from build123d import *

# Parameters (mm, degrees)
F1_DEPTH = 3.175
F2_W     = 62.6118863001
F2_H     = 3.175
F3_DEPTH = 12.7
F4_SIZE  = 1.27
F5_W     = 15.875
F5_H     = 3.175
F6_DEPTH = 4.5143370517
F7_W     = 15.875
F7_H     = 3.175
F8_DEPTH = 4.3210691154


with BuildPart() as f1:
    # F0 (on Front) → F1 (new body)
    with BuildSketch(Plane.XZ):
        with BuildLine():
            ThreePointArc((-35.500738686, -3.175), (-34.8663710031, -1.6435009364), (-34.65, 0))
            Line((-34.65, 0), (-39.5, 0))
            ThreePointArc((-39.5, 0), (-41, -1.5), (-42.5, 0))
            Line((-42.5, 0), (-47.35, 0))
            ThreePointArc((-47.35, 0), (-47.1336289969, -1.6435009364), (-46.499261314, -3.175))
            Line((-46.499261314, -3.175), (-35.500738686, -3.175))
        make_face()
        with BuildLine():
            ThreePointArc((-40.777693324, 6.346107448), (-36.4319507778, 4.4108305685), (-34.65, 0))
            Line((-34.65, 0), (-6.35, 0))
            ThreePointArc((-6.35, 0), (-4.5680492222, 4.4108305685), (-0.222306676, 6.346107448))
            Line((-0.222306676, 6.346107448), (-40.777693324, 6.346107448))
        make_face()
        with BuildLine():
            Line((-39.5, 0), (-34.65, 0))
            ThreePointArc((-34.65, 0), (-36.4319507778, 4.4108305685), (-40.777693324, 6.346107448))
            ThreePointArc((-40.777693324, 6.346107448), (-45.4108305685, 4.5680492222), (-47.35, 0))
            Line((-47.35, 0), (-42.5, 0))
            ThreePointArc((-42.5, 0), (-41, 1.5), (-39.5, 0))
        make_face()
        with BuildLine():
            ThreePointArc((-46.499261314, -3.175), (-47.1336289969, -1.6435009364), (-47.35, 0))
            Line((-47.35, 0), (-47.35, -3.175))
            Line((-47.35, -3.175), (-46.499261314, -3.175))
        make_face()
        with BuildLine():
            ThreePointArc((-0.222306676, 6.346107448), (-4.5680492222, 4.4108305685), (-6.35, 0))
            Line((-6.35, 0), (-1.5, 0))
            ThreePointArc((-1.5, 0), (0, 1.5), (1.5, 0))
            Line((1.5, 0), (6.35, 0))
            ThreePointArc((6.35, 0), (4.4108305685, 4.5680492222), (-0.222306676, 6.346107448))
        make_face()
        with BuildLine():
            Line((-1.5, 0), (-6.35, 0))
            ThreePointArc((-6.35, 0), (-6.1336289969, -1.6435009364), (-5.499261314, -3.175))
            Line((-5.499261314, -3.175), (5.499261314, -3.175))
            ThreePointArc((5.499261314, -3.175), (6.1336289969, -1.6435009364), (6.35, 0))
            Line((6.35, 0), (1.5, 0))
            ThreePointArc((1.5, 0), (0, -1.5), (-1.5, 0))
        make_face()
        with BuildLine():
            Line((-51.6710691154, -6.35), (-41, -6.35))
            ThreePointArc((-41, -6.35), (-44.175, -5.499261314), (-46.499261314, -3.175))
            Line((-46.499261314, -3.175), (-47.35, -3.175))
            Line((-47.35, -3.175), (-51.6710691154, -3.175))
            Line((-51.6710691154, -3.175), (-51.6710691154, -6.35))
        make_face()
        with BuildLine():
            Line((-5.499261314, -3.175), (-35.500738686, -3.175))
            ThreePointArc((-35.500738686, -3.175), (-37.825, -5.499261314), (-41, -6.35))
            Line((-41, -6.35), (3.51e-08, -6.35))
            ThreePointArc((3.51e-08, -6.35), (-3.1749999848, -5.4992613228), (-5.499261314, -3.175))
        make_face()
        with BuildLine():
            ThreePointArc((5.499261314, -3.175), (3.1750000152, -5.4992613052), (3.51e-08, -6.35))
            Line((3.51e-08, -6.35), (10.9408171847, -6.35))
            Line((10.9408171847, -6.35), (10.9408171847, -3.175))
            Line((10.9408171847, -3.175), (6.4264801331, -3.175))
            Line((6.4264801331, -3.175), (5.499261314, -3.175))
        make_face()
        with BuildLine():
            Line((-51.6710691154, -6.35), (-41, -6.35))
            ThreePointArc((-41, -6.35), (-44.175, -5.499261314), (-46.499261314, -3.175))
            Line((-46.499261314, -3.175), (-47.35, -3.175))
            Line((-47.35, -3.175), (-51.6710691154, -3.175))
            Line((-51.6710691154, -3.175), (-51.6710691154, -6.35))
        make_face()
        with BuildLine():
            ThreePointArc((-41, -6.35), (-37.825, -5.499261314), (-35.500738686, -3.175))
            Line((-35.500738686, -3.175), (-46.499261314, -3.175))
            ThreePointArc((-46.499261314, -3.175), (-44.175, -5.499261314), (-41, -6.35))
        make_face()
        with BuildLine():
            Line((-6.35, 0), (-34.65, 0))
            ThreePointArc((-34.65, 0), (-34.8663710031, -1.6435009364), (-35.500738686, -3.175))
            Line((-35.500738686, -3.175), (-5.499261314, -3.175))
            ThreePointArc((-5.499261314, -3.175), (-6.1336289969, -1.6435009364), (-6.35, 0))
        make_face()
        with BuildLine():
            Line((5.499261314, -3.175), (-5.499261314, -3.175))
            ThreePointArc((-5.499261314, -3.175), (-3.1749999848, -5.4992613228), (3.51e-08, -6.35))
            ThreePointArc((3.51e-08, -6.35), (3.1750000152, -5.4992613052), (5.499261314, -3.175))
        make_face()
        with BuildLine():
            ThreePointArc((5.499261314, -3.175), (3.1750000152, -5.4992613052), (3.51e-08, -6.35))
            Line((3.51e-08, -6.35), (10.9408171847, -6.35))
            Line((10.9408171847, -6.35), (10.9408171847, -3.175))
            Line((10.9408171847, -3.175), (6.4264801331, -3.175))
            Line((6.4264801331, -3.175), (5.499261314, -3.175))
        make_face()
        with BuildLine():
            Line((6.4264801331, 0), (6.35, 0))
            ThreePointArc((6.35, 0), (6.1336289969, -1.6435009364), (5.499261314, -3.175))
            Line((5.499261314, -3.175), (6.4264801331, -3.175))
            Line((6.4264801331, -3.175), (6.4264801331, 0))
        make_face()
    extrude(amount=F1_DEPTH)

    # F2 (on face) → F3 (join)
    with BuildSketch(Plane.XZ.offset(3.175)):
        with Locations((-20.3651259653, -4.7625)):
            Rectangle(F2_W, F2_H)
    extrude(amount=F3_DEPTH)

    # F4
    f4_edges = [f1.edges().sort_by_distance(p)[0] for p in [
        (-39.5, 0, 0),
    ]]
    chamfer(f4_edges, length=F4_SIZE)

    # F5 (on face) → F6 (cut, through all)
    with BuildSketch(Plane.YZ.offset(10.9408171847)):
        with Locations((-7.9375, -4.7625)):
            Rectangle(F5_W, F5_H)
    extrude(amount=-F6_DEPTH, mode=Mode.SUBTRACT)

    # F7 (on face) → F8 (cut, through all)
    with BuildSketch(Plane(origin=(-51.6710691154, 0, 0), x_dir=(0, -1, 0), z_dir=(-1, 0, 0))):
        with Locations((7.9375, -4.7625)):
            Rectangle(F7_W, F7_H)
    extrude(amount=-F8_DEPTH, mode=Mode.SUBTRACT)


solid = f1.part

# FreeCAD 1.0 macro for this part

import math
import FreeCAD as App
import Part
import Sketcher
from FreeCAD import Vector
Q = App.Units.Quantity


def edges_at(feature, points):
    """Names of the edges that pass closest to the given points."""
    edges = feature.Shape.Edges
    near = lambda p: min(range(len(edges)), key=lambda i: edges[i].distToShape(Part.Vertex(*p))[0])
    return sorted({f"Edge{near(p) + 1}" for p in points})


def add_polygon(sketch, points):
    """Adds a closed chain of lines whose ends are joined by coincident constraints."""
    first, n = sketch.GeometryCount, len(points)
    for a, b in zip(points, points[1:] + points[:1]):
        sketch.addGeometry(Part.LineSegment(App.Vector(*a, 0), App.Vector(*b, 0)), False)
    for i in range(n):
        sketch.addConstraint(Sketcher.Constraint("Coincident", first + i, 2, first + (i + 1) % n, 1))

doc = App.newDocument("Part")
body = doc.addObject("PartDesign::Body", "Body")

sketch1 = body.newObject("Sketcher::SketchObject", "Sketch")
sketch1.AttachmentSupport = (doc.getObject("XZ_Plane"), [""])
sketch1.MapMode = "FlatFace"
sketch1.addGeometry([
    Part.LineSegment(Vector(-51.671069, -6.35, 0), Vector(10.940817, -6.35, 0)),
    Part.LineSegment(Vector(10.940817, -6.35, 0), Vector(10.940817, -3.175, 0)),
    Part.LineSegment(Vector(10.940817, -3.175, 0), Vector(6.42648, -3.175, 0)),
    Part.LineSegment(Vector(6.42648, -3.175, 0), Vector(6.42648, 0, 0)),
    Part.LineSegment(Vector(6.42648, 0, 0), Vector(6.35, 0, 0)),
    Part.ArcOfCircle(Part.Circle(Vector(0, 0, 0), Vector(0, 0, 1), 6.35), math.radians(0), math.radians(92.006274)),
    Part.LineSegment(Vector(-0.222307, 6.346107, 0), Vector(-40.777693, 6.346107, 0)),
    Part.ArcOfCircle(Part.Circle(Vector(-41, 0, 0), Vector(0, 0, 1), 6.35), math.radians(87.993726), math.radians(180)),
    Part.LineSegment(Vector(-47.35, 0, 0), Vector(-47.35, -3.175, 0)),
    Part.LineSegment(Vector(-47.35, -3.175, 0), Vector(-51.671069, -3.175, 0)),
    Part.LineSegment(Vector(-51.671069, -3.175, 0), Vector(-51.671069, -6.35, 0)),
    Part.Circle(Vector(-41, 0, 0), Vector(0, 0, 1), 1.5),
    Part.Circle(Vector(0, 0, 0), Vector(0, 0, 1), 1.5),
], False)
sketch1.addConstraint([
    Sketcher.Constraint("Coincident", 0, 2, 1, 1),
    Sketcher.Constraint("Coincident", 1, 2, 2, 1),
    Sketcher.Constraint("Coincident", 2, 2, 3, 1),
    Sketcher.Constraint("Coincident", 3, 2, 4, 1),
    Sketcher.Constraint("Coincident", 4, 2, 5, 1),
    Sketcher.Constraint("Coincident", 5, 2, 6, 1),
    Sketcher.Constraint("Coincident", 6, 2, 7, 1),
    Sketcher.Constraint("Tangent", 7, 2, 8, 1),
    Sketcher.Constraint("Coincident", 8, 2, 9, 1),
    Sketcher.Constraint("Coincident", 9, 2, 10, 1),
    Sketcher.Constraint("Coincident", 10, 2, 0, 1),
    Sketcher.Constraint("Horizontal", 0),
    Sketcher.Constraint("Vertical", 1),
    Sketcher.Constraint("Horizontal", 2),
    Sketcher.Constraint("Vertical", 3),
    Sketcher.Constraint("Horizontal", 4),
    Sketcher.Constraint("Horizontal", 6),
    Sketcher.Constraint("Vertical", 8),
    Sketcher.Constraint("Horizontal", 9),
    Sketcher.Constraint("Vertical", 10),
    Sketcher.Constraint("Coincident", 5, 3, -1, 1),
    Sketcher.Constraint("Coincident", 12, 3, -1, 1),
    Sketcher.Constraint("Coincident", 11, 3, 7, 3),
    Sketcher.Constraint("Equal", 5, 7),
    Sketcher.Constraint("Equal", 11, 12),
    Sketcher.Constraint("PointOnObject", 7, 3, -1),
    Sketcher.Constraint("PointOnObject", 3, 2, -1),
    Sketcher.Constraint("Horizontal", 2, 2, 8, 2),
    Sketcher.Constraint("Equal", 1, 3),
    Sketcher.Constraint("Radius", 5, Q("0.25 in")),
    Sketcher.Constraint("Diameter", 11, 3.0),
    Sketcher.Constraint("DistanceY", 1, 1, 1, 2, Q("0.125 in")),
    Sketcher.Constraint("DistanceX", 4, 2, 4, 1, 0.07648),
    Sketcher.Constraint("DistanceX", 9, 2, 9, 1, 4.321069),
    Sketcher.Constraint("DistanceX", 7, 3, -1, 1, 41.0),
    Sketcher.Constraint("DistanceX", 0, 1, 0, 2, 62.611886),
    Sketcher.Constraint("DistanceX", 6, 2, 6, 1, 40.555387),
])
pad1 = body.newObject("PartDesign::Pad", "Pad")
pad1.Profile = sketch1
pad1.Length = Q("0.125 in")

sketch2 = body.newObject("Sketcher::SketchObject", "Sketch001")
sketch2.AttachmentSupport = (doc.getObject("XZ_Plane"), [""])
sketch2.MapMode = "FlatFace"
sketch2.AttachmentOffset = App.Placement(Vector(0, 0, 0.125 * 25.4), App.Rotation())
add_polygon(sketch2, [(-51.671069, -3.175), (-51.671069, -6.35), (10.940817, -6.35), (10.940817, -3.175)])
sketch2.addConstraint([
    Sketcher.Constraint("Vertical", 0),
    Sketcher.Constraint("Horizontal", 1),
    Sketcher.Constraint("Vertical", 2),
    Sketcher.Constraint("Horizontal", 3),
    Sketcher.Constraint("DistanceY", 0, 2, 0, 1, Q("0.125 in")),
    Sketcher.Constraint("DistanceY", 0, 2, -1, 1, Q("0.25 in")),
    Sketcher.Constraint("DistanceX", 1, 1, 1, 2, 62.611886),
    Sketcher.Constraint("DistanceX", 0, 2, -1, 1, 51.671069),
])
pad2 = body.newObject("PartDesign::Pad", "Pad001")
pad2.Profile = sketch2
pad2.Length = Q("0.5 in")
doc.recompute()

chamfer = body.newObject("PartDesign::Chamfer", "Chamfer")
chamfer.Base = (pad2, edges_at(pad2, [(-39.5, 0, 0)]))
chamfer.Size = Q("0.05 in")

sketch3 = body.newObject("Sketcher::SketchObject", "Sketch002")
sketch3.AttachmentSupport = (doc.getObject("YZ_Plane"), [""])
sketch3.MapMode = "FlatFace"
sketch3.AttachmentOffset = App.Placement(Vector(0, 0, 10.940817), App.Rotation())
add_polygon(sketch3, [(-15.875, -3.175), (-15.875, -6.35), (0, -6.35), (0, -3.175)])
sketch3.addConstraint([
    Sketcher.Constraint("Vertical", 0),
    Sketcher.Constraint("Horizontal", 1),
    Sketcher.Constraint("Vertical", 2),
    Sketcher.Constraint("Horizontal", 3),
    Sketcher.Constraint("PointOnObject", 1, 2, -2),
    Sketcher.Constraint("DistanceX", 1, 1, 1, 2, Q("0.625 in")),
    Sketcher.Constraint("DistanceY", 0, 2, 0, 1, Q("0.125 in")),
    Sketcher.Constraint("DistanceY", 0, 2, -1, 1, Q("0.25 in")),
])
pocket1 = body.newObject("PartDesign::Pocket", "Pocket")
pocket1.Profile = sketch3
pocket1.Length = 4.514337

sketch4 = body.newObject("Sketcher::SketchObject", "Sketch003")
sketch4.AttachmentSupport = (doc.getObject("YZ_Plane"), [""])
sketch4.MapMode = "FlatFace"
sketch4.AttachmentOffset = App.Placement(Vector(0, 0, -51.671069), App.Rotation())
add_polygon(sketch4, [(0, -3.175), (0, -6.35), (-15.875, -6.35), (-15.875, -3.175)])
sketch4.addConstraint([
    Sketcher.Constraint("Vertical", 0),
    Sketcher.Constraint("Horizontal", 1),
    Sketcher.Constraint("Vertical", 2),
    Sketcher.Constraint("Horizontal", 3),
    Sketcher.Constraint("PointOnObject", 0, 2, -2),
    Sketcher.Constraint("DistanceX", 1, 2, 1, 1, Q("0.625 in")),
    Sketcher.Constraint("DistanceY", 0, 2, 0, 1, Q("0.125 in")),
    Sketcher.Constraint("DistanceY", 0, 2, -1, 1, Q("0.25 in")),
])
pocket2 = body.newObject("PartDesign::Pocket", "Pocket001")
pocket2.Profile = sketch4
pocket2.Length = 4.321069
pocket2.Reversed = True

doc.recompute()
